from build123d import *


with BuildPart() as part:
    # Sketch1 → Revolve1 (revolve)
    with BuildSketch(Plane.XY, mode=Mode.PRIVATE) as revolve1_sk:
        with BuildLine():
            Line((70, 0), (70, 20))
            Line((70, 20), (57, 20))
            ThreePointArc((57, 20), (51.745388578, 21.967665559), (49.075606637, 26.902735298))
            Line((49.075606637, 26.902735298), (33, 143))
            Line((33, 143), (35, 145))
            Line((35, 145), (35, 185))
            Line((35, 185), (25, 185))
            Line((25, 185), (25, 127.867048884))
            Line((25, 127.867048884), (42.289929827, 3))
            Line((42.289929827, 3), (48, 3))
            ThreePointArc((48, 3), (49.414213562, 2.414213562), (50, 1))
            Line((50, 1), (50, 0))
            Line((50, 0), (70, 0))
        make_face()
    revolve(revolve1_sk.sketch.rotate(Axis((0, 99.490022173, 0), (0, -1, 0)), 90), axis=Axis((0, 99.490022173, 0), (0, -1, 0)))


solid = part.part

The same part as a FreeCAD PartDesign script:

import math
import FreeCAD as App
import Part
import Sketcher
from FreeCAD import Vector
Q = App.Units.Quantity

doc = App.newDocument("Part")
params = doc.addObject("Spreadsheet::Sheet", "Params")
for row, (alias, value) in enumerate([
    ("sketch1_radius", "8 mm"),
    ("sketch1_radius2", "2 mm"),
    ("sketch1_width", "13 mm"),
    ("sketch1_width2", "10 mm"),
    ("sketch1_width3", "20 mm"),
    ("revolution_angle", "360 deg"),
], start=1):
    params.set(f"A{row}", alias)
    params.set(f"B{row}", "=" + value)
    params.setAlias(f"B{row}", alias)

body = doc.addObject("PartDesign::Body", "Body")

sketch1 = body.newObject("Sketcher::SketchObject", "Sketch")
sketch1.AttachmentSupport = (doc.getObject("XY_Plane"), [""])
sketch1.MapMode = "FlatFace"
sketch1.addGeometry(Part.LineSegment(Vector(70, 0, 0), Vector(70, 20, 0)), False)
sketch1.addGeometry(Part.LineSegment(Vector(70, 20, 0), Vector(57, 20, 0)), False)
sketch1.addGeometry(Part.ArcOfCircle(Part.Circle(Vector(57, 28, 0), Vector(0, 0, 1), 8), math.radians(-172), math.radians(-90)), False)
sketch1.addGeometry(Part.LineSegment(Vector(49.1, 26.9, 0), Vector(33, 143, 0)), False)
sketch1.addGeometry(Part.LineSegment(Vector(33, 143, 0), Vector(35, 145, 0)), False)
sketch1.addGeometry(Part.LineSegment(Vector(35, 145, 0), Vector(35, 185, 0)), False)
sketch1.addGeometry(Part.LineSegment(Vector(35, 185, 0), Vector(25, 185, 0)), False)
sketch1.addGeometry(Part.LineSegment(Vector(25, 185, 0), Vector(25, 127.9, 0)), False)
sketch1.addGeometry(Part.LineSegment(Vector(25, 127.9, 0), Vector(42.3, 3, 0)), False)
sketch1.addGeometry(Part.LineSegment(Vector(42.3, 3, 0), Vector(48, 3, 0)), False)
sketch1.addGeometry(Part.ArcOfCircle(Part.Circle(Vector(48, 1, 0), Vector(0, 0, 1), 2), math.radians(0), math.radians(90)), False)
sketch1.addGeometry(Part.LineSegment(Vector(50, 1, 0), Vector(50, 0, 0)), False)
sketch1.addGeometry(Part.LineSegment(Vector(50, 0, 0), Vector(70, 0, 0)), False)
sketch1.addConstraint(Sketcher.Constraint("Coincident", 0, 2, 1, 1))
sketch1.addConstraint(Sketcher.Constraint("Tangent", 1, 2, 2, 2))
sketch1.addConstraint(Sketcher.Constraint("Tangent", 2, 1, 3, 1))
sketch1.addConstraint(Sketcher.Constraint("Coincident", 3, 2, 4, 1))
sketch1.addConstraint(Sketcher.Constraint("Coincident", 4, 2, 5, 1))
sketch1.addConstraint(Sketcher.Constraint("Coincident", 5, 2, 6, 1))
sketch1.addConstraint(Sketcher.Constraint("Coincident", 6, 2, 7, 1))
sketch1.addConstraint(Sketcher.Constraint("Coincident", 7, 2, 8, 1))
sketch1.addConstraint(Sketcher.Constraint("Coincident", 8, 2, 9, 1))
sketch1.addConstraint(Sketcher.Constraint("Tangent", 9, 2, 10, 2))
sketch1.addConstraint(Sketcher.Constraint("Tangent", 10, 1, 11, 1))
sketch1.addConstraint(Sketcher.Constraint("Coincident", 11, 2, 12, 1))
sketch1.addConstraint(Sketcher.Constraint("Coincident", 12, 2, 0, 1))
sketch1.addConstraint(Sketcher.Constraint("Vertical", 0))
sketch1.addConstraint(Sketcher.Constraint("Horizontal", 1))
sketch1.addConstraint(Sketcher.Constraint("Vertical", 5))
sketch1.addConstraint(Sketcher.Constraint("Horizontal", 6))
sketch1.addConstraint(Sketcher.Constraint("Vertical", 7))
sketch1.addConstraint(Sketcher.Constraint("Horizontal", 9))
sketch1.addConstraint(Sketcher.Constraint("Vertical", 11))
sketch1.addConstraint(Sketcher.Constraint("Horizontal", 12))
sketch1.addConstraint(Sketcher.Constraint("PointOnObject", 11, 2, -1))
sketch1.addConstraint(Sketcher.Constraint("Parallel", 3, 8))
sketch1.addConstraint(Sketcher.Constraint("Equal", 12, 0))
sketch1.addConstraint(Sketcher.Constraint("Radius", 2, Q("8 mm")))
sketch1.addConstraint(Sketcher.Constraint("Radius", 10, Q("2 mm")))
sketch1.addConstraint(Sketcher.Constraint("DistanceX", 1, 2, 1, 1, Q("13 mm")))
sketch1.addConstraint(Sketcher.Constraint("DistanceX", 6, 2, 6, 1, Q("10 mm")))
sketch1.addConstraint(Sketcher.Constraint("DistanceX", 12, 1, 12, 2, Q("20 mm")))
sketch1.addConstraint(Sketcher.Constraint("DistanceY", 5, 1, 5, 2, Q("40 mm")))
sketch1.addConstraint(Sketcher.Constraint("DistanceY", 11, 2, 11, 1, Q("1 mm")))
sketch1.addConstraint(Sketcher.Constraint("Angle", 4, Q("45 deg")))
sketch1.addConstraint(Sketcher.Constraint("DistanceX", -1, 1, 2, 3, Q("57 mm")))
sketch1.addConstraint(Sketcher.Constraint("DistanceX", -1, 1, 3, 2, Q("33 mm")))
sketch1.addConstraint(Sketcher.Constraint("DistanceY", -1, 1, 3, 2, Q("143 mm")))
sketch1.addConstraint(Sketcher.Constraint("DistanceX", -1, 1, 4, 2, Q("35 mm")))
sketch1.addConstraint(Sketcher.Constraint("DistanceX", 9, 1, 9, 2, Q("5.71007 mm")))
sketch1.setExpression("Constraints[24]", "Params.sketch1_radius")
sketch1.setExpression("Constraints[25]", "Params.sketch1_radius2")
sketch1.setExpression("Constraints[26]", "Params.sketch1_width")
sketch1.setExpression("Constraints[27]", "Params.sketch1_width2")
sketch1.setExpression("Constraints[28]", "Params.sketch1_width3")
revolution = body.newObject("PartDesign::Revolution", "Revolution")
revolution.Profile = sketch1
revolution.ReferenceAxis = (sketch1, ["V_Axis"])
revolution.setExpression("Angle", "Params.revolution_angle")

doc.recompute()
